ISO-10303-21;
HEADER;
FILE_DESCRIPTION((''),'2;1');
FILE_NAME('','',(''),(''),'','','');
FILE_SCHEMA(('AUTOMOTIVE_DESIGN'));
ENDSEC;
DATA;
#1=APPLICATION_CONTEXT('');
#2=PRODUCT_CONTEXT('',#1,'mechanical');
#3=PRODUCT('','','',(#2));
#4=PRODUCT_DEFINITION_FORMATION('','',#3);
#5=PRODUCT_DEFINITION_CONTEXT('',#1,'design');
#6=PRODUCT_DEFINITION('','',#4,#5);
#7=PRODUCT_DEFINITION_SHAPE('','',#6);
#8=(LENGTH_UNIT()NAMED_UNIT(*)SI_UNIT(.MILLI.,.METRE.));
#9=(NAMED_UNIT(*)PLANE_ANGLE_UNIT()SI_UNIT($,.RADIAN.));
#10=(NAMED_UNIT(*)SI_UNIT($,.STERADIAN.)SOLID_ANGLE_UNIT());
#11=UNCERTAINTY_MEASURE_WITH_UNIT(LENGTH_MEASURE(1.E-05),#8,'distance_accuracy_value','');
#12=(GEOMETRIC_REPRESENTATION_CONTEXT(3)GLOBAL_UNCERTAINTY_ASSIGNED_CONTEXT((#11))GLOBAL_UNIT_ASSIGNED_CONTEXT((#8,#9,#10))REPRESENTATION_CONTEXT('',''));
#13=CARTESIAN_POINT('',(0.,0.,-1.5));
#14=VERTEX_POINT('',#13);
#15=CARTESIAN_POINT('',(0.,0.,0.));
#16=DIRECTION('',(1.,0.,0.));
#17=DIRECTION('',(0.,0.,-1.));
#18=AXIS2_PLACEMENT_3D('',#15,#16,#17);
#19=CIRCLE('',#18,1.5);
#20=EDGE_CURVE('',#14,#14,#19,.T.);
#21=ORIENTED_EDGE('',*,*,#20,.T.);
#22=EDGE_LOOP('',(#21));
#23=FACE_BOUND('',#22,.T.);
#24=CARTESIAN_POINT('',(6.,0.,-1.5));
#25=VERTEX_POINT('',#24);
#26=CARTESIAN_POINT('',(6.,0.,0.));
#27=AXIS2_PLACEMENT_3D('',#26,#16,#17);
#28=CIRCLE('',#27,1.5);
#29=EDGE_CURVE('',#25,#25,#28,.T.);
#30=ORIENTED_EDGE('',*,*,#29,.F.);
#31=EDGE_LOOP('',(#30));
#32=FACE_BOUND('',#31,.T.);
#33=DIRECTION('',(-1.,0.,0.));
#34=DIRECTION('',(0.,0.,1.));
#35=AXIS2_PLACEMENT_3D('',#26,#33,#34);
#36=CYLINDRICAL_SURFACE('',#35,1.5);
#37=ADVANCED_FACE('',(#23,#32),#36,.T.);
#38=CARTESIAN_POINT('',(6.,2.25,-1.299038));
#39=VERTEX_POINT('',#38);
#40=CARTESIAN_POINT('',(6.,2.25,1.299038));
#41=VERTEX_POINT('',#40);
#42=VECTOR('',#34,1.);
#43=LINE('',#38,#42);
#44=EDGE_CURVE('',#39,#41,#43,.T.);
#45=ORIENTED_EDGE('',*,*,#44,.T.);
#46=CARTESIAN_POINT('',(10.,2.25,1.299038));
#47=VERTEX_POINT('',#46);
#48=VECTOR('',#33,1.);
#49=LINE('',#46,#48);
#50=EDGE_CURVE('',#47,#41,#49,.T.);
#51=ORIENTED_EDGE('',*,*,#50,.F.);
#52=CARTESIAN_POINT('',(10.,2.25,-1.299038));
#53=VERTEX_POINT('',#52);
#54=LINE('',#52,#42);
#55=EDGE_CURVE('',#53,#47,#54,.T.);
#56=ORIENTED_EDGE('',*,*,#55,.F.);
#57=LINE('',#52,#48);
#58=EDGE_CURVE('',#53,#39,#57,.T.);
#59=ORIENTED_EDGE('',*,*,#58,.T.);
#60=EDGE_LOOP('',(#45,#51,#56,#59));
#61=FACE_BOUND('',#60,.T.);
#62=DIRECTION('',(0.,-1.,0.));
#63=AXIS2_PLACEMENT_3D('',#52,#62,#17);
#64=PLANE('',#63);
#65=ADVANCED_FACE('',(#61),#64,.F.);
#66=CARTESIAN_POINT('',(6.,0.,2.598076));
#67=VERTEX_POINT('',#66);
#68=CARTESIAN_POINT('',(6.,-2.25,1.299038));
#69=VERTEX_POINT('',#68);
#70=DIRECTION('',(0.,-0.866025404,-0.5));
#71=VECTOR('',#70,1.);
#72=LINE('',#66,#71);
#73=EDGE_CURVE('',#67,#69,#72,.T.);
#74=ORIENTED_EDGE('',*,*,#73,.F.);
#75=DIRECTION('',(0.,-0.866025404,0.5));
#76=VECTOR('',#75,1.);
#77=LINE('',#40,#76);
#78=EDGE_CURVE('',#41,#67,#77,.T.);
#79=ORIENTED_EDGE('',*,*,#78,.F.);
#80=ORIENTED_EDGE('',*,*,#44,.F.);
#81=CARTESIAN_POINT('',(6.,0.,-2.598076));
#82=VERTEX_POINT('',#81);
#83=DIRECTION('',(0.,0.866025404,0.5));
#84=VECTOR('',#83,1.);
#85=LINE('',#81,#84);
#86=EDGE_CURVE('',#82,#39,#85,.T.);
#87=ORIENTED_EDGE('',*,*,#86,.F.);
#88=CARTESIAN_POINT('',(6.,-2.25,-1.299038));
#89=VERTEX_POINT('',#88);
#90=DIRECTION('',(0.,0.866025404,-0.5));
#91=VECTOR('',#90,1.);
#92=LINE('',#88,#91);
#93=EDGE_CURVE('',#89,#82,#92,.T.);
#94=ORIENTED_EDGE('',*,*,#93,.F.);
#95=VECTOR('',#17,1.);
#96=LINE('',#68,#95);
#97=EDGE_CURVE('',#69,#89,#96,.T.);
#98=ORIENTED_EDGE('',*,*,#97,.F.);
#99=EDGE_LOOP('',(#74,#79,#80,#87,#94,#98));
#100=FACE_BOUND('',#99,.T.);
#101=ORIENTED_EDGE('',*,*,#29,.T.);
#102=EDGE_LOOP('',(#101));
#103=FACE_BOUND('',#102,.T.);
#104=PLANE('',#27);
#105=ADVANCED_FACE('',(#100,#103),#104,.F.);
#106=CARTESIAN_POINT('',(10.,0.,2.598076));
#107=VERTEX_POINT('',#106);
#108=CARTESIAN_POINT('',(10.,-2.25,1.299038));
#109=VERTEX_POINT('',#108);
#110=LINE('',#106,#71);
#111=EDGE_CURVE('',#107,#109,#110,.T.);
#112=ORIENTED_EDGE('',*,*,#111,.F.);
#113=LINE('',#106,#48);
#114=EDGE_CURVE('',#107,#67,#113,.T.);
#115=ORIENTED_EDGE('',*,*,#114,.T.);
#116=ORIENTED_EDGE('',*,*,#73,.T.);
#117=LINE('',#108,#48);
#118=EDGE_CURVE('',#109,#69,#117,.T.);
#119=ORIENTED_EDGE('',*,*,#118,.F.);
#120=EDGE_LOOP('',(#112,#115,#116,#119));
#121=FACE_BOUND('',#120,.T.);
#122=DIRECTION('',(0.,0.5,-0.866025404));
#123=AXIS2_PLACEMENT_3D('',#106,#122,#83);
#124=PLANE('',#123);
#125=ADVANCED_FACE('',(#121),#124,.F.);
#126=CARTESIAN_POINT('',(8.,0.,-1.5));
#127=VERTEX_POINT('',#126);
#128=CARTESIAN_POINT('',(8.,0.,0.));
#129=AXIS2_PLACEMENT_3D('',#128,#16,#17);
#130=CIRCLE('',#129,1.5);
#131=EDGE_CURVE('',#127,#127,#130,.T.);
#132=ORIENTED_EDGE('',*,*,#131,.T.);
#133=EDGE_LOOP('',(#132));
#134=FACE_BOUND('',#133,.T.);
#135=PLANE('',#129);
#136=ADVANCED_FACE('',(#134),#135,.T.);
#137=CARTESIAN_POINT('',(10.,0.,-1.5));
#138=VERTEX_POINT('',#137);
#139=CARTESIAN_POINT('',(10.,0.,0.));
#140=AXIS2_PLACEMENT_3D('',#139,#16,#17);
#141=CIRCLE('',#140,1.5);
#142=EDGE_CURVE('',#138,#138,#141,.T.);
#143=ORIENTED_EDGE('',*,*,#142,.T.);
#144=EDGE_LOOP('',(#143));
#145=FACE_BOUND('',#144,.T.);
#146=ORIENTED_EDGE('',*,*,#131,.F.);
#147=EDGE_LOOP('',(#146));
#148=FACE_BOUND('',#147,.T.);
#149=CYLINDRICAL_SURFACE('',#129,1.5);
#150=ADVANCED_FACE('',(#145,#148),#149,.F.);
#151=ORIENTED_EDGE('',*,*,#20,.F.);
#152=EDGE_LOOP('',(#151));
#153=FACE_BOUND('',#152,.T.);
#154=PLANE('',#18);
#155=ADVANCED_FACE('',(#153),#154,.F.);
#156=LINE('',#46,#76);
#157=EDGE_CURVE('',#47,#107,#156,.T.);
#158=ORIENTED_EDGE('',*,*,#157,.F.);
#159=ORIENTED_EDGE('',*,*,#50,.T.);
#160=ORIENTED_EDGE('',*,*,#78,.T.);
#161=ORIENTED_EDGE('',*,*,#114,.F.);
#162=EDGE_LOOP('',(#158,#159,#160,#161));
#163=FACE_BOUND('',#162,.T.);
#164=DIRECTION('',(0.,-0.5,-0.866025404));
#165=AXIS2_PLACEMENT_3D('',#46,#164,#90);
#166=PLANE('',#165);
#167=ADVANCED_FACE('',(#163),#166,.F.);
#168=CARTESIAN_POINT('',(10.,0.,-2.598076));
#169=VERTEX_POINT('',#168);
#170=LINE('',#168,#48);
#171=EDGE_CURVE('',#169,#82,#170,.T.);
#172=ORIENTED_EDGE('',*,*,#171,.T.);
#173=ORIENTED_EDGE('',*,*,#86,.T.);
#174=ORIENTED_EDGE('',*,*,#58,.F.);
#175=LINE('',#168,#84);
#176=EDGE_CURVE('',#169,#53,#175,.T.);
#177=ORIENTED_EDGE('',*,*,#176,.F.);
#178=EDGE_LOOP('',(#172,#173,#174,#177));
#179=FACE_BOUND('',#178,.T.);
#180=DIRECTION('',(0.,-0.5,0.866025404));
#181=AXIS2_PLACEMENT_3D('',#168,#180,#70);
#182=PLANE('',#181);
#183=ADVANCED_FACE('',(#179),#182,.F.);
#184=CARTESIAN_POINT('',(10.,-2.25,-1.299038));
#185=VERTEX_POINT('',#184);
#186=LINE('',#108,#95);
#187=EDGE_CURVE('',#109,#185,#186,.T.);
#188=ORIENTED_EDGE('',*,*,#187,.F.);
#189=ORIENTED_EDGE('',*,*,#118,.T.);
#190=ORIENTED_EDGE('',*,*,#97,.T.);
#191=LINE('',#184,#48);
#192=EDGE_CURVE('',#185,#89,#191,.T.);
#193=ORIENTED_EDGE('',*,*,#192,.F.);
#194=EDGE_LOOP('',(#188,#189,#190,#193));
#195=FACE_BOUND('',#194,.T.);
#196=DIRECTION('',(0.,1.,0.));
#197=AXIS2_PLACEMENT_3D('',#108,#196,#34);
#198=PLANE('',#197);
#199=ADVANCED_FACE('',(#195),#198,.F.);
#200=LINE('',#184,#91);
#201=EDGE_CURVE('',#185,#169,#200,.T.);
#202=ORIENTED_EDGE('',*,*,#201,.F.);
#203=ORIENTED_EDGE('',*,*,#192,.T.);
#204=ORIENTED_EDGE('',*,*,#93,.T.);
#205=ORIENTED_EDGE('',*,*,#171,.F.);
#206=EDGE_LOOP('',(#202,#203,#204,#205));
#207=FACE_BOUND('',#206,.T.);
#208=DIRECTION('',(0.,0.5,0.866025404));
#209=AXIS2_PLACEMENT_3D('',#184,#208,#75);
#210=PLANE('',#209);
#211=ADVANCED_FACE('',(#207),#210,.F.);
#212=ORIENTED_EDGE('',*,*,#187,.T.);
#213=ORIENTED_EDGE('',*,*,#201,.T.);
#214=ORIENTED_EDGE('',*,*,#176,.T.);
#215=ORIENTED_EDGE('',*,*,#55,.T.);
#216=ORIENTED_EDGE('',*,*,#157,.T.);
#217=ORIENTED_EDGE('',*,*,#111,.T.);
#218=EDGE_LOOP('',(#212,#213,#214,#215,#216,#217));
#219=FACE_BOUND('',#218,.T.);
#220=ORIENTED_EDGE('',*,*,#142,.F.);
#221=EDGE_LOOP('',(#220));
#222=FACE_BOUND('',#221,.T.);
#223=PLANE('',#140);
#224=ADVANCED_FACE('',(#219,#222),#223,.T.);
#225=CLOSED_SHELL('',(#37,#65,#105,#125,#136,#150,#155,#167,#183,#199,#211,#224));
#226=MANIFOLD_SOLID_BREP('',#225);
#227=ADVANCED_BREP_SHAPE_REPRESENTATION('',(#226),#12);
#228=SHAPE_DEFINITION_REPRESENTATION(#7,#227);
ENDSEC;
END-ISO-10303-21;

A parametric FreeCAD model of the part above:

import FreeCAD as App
import Part
import Sketcher
Q = App.Units.Quantity

doc = App.newDocument("Part")
body = doc.addObject("PartDesign::Body", "Body")

# Sketch on YZ plane
sketch1 = body.newObject("Sketcher::SketchObject", "Sketch")
sketch1.AttachmentSupport = (doc.getObject("YZ_Plane"), [""])
sketch1.MapMode = "FlatFace"
sketch1.addGeometry(Part.Circle(App.Vector(0, 0, 0), App.Vector(0, 0, 1), 1.5), False)
sketch1.addConstraint(Sketcher.Constraint("Coincident", 0, 3, -1, 1))
sketch1.addConstraint(Sketcher.Constraint("Diameter", 0, 3.0))
pad1 = body.newObject("PartDesign::Pad", "Pad")
pad1.Profile = sketch1
pad1.Length = 6

# Sketch on YZ plane
sketch2 = body.newObject("Sketcher::SketchObject", "Sketch001")
sketch2.AttachmentSupport = (doc.getObject("YZ_Plane"), [""])
sketch2.MapMode = "FlatFace"
sketch2.AttachmentOffset = App.Placement(App.Vector(0, 0, 6), App.Rotation())
sketch2.addGeometry(Part.LineSegment(App.Vector(0, -2.6, 0), App.Vector(2.2, -1.3, 0)), False)
sketch2.addGeometry(Part.LineSegment(App.Vector(2.2, -1.3, 0), App.Vector(2.2, 1.3, 0)), False)
sketch2.addGeometry(Part.LineSegment(App.Vector(2.2, 1.3, 0), App.Vector(0, 2.6, 0)), False)
sketch2.addGeometry(Part.LineSegment(App.Vector(0, 2.6, 0), App.Vector(-2.2, 1.3, 0)), False)
sketch2.addGeometry(Part.LineSegment(App.Vector(-2.2, 1.3, 0), App.Vector(-2.2, -1.3, 0)), False)
sketch2.addGeometry(Part.LineSegment(App.Vector(-2.2, -1.3, 0), App.Vector(0, -2.6, 0)), False)
sketch2.addConstraint(Sketcher.Constraint("Coincident", 0, 2, 1, 1))
sketch2.addConstraint(Sketcher.Constraint("Coincident", 1, 2, 2, 1))
sketch2.addConstraint(Sketcher.Constraint("Coincident", 2, 2, 3, 1))
sketch2.addConstraint(Sketcher.Constraint("Coincident", 3, 2, 4, 1))
sketch2.addConstraint(Sketcher.Constraint("Coincident", 4, 2, 5, 1))
sketch2.addConstraint(Sketcher.Constraint("Coincident", 5, 2, 0, 1))
sketch2.addConstraint(Sketcher.Constraint("Vertical", 1))
sketch2.addConstraint(Sketcher.Constraint("Vertical", 4))
sketch2.addConstraint(Sketcher.Constraint("Symmetric", 0, 2, 3, 2, -1, 1))
sketch2.addConstraint(Sketcher.Constraint("Symmetric", 2, 2, 5, 2, -1, 1))
sketch2.addConstraint(Sketcher.Constraint("PointOnObject", 2, 2, -2))
sketch2.addConstraint(Sketcher.Constraint("Parallel", 2, 5))
sketch2.addConstraint(Sketcher.Constraint("Horizontal", 1, 2, 3, 2))
sketch2.addConstraint(Sketcher.Constraint("Angle", 0, Q("30 deg")))
sketch2.addConstraint(Sketcher.Constraint("DistanceX", 3, 2, 1, 2, 4.5))
sketch2.addConstraint(Sketcher.Constraint("DistanceY", 1, 1, 1, 2, 2.598076))
pad2 = body.newObject("PartDesign::Pad", "Pad001")
pad2.Profile = sketch2
pad2.Length = 4

# Sketch on YZ plane
sketch3 = body.newObject("Sketcher::SketchObject", "Sketch002")
sketch3.AttachmentSupport = (doc.getObject("YZ_Plane"), [""])
sketch3.MapMode = "FlatFace"
sketch3.AttachmentOffset = App.Placement(App.Vector(0, 0, 8), App.Rotation())
sketch3.addGeometry(Part.Circle(App.Vector(0, 0, 0), App.Vector(0, 0, 1), 1.5), False)
sketch3.addConstraint(Sketcher.Constraint("Coincident", 0, 3, -1, 1))
sketch3.addConstraint(Sketcher.Constraint("Diameter", 0, 3.0))
pocket1 = body.newObject("PartDesign::Pocket", "Pocket")
pocket1.Profile = sketch3
pocket1.Length = 2
pocket1.Reversed = True

doc.recompute()
